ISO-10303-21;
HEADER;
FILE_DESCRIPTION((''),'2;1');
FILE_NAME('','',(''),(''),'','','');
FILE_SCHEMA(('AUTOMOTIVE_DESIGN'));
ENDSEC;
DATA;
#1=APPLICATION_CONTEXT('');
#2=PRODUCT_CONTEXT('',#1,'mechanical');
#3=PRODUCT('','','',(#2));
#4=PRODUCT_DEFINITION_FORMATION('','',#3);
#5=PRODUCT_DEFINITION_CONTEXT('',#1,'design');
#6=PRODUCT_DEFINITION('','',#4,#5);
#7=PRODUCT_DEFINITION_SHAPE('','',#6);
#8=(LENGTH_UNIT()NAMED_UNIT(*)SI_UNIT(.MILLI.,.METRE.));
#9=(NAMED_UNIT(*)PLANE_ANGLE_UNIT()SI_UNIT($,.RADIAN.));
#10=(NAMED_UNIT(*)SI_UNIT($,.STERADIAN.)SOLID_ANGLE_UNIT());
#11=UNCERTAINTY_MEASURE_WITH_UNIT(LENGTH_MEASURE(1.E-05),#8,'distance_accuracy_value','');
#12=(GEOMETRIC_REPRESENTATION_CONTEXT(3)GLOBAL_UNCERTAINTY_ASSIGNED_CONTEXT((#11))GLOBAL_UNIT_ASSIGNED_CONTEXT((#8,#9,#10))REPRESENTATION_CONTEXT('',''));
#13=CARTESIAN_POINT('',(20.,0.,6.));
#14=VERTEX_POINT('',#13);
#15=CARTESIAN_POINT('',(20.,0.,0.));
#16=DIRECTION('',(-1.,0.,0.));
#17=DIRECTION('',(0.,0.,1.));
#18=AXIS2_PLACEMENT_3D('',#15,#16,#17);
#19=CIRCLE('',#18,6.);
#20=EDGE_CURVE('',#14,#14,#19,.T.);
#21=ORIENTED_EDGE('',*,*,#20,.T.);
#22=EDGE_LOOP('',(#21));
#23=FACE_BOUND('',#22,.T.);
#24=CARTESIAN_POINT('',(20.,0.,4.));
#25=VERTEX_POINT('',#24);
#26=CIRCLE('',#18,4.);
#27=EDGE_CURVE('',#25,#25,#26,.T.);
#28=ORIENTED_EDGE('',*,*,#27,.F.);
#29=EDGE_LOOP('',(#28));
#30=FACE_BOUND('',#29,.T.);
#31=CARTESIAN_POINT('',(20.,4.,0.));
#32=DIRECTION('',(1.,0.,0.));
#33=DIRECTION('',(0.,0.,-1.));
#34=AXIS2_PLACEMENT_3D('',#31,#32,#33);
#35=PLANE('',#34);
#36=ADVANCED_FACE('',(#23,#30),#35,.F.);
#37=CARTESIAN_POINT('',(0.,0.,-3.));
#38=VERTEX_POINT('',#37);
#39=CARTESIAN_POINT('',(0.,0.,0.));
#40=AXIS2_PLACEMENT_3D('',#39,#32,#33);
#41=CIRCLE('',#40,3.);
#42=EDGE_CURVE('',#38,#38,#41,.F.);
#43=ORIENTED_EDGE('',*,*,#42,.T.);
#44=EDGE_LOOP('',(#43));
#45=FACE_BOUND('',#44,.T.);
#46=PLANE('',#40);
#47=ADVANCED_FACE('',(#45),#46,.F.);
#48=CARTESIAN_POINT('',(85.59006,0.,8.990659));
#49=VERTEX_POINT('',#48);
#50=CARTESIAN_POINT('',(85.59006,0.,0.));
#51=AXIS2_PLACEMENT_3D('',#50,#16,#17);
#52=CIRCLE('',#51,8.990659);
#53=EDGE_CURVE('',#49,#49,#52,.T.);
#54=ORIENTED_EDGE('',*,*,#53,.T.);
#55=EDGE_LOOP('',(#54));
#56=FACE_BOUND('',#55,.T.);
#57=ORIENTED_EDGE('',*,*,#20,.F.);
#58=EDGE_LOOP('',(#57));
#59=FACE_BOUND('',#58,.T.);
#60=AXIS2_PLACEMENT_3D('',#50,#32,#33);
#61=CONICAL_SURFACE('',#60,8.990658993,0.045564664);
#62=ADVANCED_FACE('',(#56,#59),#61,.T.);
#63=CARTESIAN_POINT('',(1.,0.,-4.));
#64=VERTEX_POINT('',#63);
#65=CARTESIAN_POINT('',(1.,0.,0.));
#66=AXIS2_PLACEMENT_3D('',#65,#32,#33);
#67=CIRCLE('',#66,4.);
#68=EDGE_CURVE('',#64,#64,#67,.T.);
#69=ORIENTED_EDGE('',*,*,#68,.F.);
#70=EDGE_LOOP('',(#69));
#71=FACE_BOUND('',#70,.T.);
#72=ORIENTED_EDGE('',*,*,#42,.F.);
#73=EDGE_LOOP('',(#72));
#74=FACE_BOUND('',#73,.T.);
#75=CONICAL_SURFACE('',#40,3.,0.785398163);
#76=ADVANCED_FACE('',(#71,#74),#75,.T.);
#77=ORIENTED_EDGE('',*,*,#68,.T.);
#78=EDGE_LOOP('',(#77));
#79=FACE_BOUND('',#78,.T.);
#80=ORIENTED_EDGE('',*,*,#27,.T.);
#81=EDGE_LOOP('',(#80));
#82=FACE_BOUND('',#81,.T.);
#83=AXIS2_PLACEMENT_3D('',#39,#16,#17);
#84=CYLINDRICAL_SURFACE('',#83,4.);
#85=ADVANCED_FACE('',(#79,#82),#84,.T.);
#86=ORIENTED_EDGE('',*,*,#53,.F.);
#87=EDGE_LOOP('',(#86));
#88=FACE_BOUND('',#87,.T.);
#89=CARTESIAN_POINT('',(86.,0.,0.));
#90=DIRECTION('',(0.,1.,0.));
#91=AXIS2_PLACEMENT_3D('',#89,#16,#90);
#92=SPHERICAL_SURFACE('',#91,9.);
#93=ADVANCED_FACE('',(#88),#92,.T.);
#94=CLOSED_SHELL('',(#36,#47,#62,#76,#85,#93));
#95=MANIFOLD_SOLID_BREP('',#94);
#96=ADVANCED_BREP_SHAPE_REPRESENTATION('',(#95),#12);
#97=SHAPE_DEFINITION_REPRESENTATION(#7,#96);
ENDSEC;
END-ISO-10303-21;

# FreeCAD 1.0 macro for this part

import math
import FreeCAD as App
import Part
import Sketcher
Q = App.Units.Quantity


def edges_at(feature, points):
    """Names of the edges that pass closest to the given points."""
    edges = feature.Shape.Edges
    near = lambda p: min(range(len(edges)), key=lambda i: edges[i].distToShape(Part.Vertex(*p))[0])
    return sorted({f"Edge{near(p) + 1}" for p in points})

doc = App.newDocument("Part")
body = doc.addObject("PartDesign::Body", "Body")

sketch1 = body.newObject("Sketcher::SketchObject", "Sketch")
sketch1.AttachmentSupport = (doc.getObject("XY_Plane"), [""])
sketch1.MapMode = "FlatFace"
sketch1.addGeometry([
    Part.LineSegment(App.Vector(0, 4, 0), App.Vector(0, 0, 0)),
    Part.LineSegment(App.Vector(0, 0, 0), App.Vector(95, 0, 0)),
    Part.ArcOfCircle(Part.Circle(App.Vector(86, 0, 0), App.Vector(0, 0, 1), 9), math.radians(0), math.radians(92.610663)),
    Part.LineSegment(App.Vector(85.59006, 8.990659, 0), App.Vector(20, 6, 0)),
    Part.LineSegment(App.Vector(20, 6, 0), App.Vector(20, 4, 0)),
    Part.LineSegment(App.Vector(20, 4, 0), App.Vector(0, 4, 0)),
], False)
sketch1.addConstraint([
    Sketcher.Constraint("Coincident", 0, 2, 1, 1),
    Sketcher.Constraint("Coincident", 1, 2, 2, 1),
    Sketcher.Constraint("Tangent", 2, 2, 3, 1),
    Sketcher.Constraint("Coincident", 3, 2, 4, 1),
    Sketcher.Constraint("Coincident", 4, 2, 5, 1),
    Sketcher.Constraint("Coincident", 5, 2, 0, 1),
    Sketcher.Constraint("Vertical", 0),
    Sketcher.Constraint("Horizontal", 1),
    Sketcher.Constraint("Vertical", 4),
    Sketcher.Constraint("Horizontal", 5),
    Sketcher.Constraint("Coincident", 0, 2, -1, 1),
    Sketcher.Constraint("PointOnObject", 2, 3, -1),
    Sketcher.Constraint("Radius", 2, Q("9 mm")),
    Sketcher.Constraint("DistanceX", 1, 1, 1, 2, Q("95 mm")),
    Sketcher.Constraint("DistanceX", 5, 2, 5, 1, Q("20 mm")),
    Sketcher.Constraint("DistanceY", 0, 2, 0, 1, Q("4 mm")),
    Sketcher.Constraint("DistanceY", 4, 2, 4, 1, Q("2 mm")),
])
revolution = body.newObject("PartDesign::Revolution", "Revolution")
revolution.Profile = sketch1
revolution.ReferenceAxis = (sketch1, ["H_Axis"])
revolution.Angle = 360
doc.recompute()

chamfer = body.newObject("PartDesign::Chamfer", "Chamfer")
chamfer.Base = (revolution, edges_at(revolution, [(0, 0, -4)]))
chamfer.Size = 1

doc.recompute()
